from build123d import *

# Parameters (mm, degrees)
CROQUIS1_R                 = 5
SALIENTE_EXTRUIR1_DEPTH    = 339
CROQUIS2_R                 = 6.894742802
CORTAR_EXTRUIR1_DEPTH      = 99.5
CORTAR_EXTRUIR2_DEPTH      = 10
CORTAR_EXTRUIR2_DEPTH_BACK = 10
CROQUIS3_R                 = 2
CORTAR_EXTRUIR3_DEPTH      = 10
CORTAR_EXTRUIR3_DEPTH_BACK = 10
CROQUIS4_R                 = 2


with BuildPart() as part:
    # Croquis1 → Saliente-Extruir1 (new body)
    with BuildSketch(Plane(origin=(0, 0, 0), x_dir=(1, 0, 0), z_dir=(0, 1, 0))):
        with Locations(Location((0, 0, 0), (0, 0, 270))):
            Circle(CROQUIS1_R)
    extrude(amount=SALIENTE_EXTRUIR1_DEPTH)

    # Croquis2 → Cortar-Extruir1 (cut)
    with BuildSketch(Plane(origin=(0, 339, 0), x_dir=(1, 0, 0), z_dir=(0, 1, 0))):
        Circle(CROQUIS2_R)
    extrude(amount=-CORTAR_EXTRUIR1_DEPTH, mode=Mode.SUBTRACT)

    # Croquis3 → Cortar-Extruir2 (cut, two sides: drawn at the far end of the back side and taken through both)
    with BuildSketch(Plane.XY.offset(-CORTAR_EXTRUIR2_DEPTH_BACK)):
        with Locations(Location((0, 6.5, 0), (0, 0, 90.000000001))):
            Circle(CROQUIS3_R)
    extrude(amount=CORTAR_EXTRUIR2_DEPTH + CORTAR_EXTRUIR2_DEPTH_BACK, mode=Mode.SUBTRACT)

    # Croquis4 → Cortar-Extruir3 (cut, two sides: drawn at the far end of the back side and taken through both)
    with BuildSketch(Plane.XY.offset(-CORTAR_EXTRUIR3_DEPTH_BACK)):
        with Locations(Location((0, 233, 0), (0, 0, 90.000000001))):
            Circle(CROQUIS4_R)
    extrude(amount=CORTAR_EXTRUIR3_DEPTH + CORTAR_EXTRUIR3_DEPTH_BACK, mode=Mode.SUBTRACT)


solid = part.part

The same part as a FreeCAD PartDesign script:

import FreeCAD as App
import Part
import Sketcher
Q = App.Units.Quantity

doc = App.newDocument("Part")
params = doc.addObject("Spreadsheet::Sheet", "Params")
for row, (alias, value) in enumerate([
    ("sketch1_diameter", "10 mm"),
    ("pad1_length", "339 mm"),
    ("pocket1_length", "99.5 mm"),
    ("sketch3_diameter", "4 mm"),
    ("sketch4_diameter", "4 mm"),
], start=1):
    params.set(f"A{row}", alias)
    params.set(f"B{row}", "=" + value)
    params.setAlias(f"B{row}", alias)

body = doc.addObject("PartDesign::Body", "Body")

# Sketch on XZ plane
sketch1 = doc.addObject("Sketcher::SketchObject", "Sketch")
body.addObject(sketch1)
sketch1.AttachmentSupport = (doc.XZ_Plane, [""])
sketch1.MapMode = "FlatFace"
sketch1.addGeometry(Part.Circle(App.Vector(0, 0, 0), App.Vector(0, 0, 1), 5), False)
sketch1.addConstraint(Sketcher.Constraint("Coincident", 0, 3, -1, 1))
sketch1.addConstraint(Sketcher.Constraint("Diameter", 0, Q("10 mm")))
sketch1.setExpression("Constraints[1]", "Params.sketch1_diameter")
pad1 = doc.addObject("PartDesign::Pad", "Pad")
body.addObject(pad1)
pad1.Profile = sketch1
pad1.setExpression("Length", "Params.pad1_length")
pad1.Reversed = True

# Sketch on XZ plane
sketch2 = doc.addObject("Sketcher::SketchObject", "Sketch001")
body.addObject(sketch2)
sketch2.AttachmentSupport = (doc.XZ_Plane, [""])
sketch2.MapMode = "FlatFace"
sketch2.AttachmentOffset = App.Placement(App.Vector(0, 0, -339), App.Rotation())
sketch2.addGeometry(Part.Circle(App.Vector(0, 0, 0), App.Vector(0, 0, 1), 7), False)
sketch2.addConstraint(Sketcher.Constraint("Coincident", 0, 3, -1, 1))
sketch2.addConstraint(Sketcher.Constraint("Diameter", 0, Q("13.789486 mm")))
pocket1 = doc.addObject("PartDesign::Pocket", "Pocket")
body.addObject(pocket1)
pocket1.Profile = sketch2
pocket1.setExpression("Length", "Params.pocket1_length")
pocket1.Reversed = True

# Sketch on XY plane
sketch3 = doc.addObject("Sketcher::SketchObject", "Sketch002")
body.addObject(sketch3)
sketch3.AttachmentSupport = (doc.XY_Plane, [""])
sketch3.MapMode = "FlatFace"
sketch3.addGeometry(Part.Circle(App.Vector(0, 6.5, 0), App.Vector(0, 0, 1), 2), False)
sketch3.addConstraint(Sketcher.Constraint("PointOnObject", 0, 3, -2))
sketch3.addConstraint(Sketcher.Constraint("Diameter", 0, Q("4 mm")))
sketch3.addConstraint(Sketcher.Constraint("DistanceY", -1, 1, 0, 3, Q("6.5 mm")))
sketch3.setExpression("Constraints[1]", "Params.sketch3_diameter")
pocket2 = doc.addObject("PartDesign::Pocket", "Pocket001")
body.addObject(pocket2)
pocket2.Profile = sketch3
pocket2.Type = "ThroughAll"
pocket2.Midplane = True

# Sketch on XY plane
sketch4 = doc.addObject("Sketcher::SketchObject", "Sketch003")
body.addObject(sketch4)
sketch4.AttachmentSupport = (doc.XY_Plane, [""])
sketch4.MapMode = "FlatFace"
sketch4.addGeometry(Part.Circle(App.Vector(0, 233, 0), App.Vector(0, 0, 1), 2), False)
sketch4.addConstraint(Sketcher.Constraint("PointOnObject", 0, 3, -2))
sketch4.addConstraint(Sketcher.Constraint("Diameter", 0, Q("4 mm")))
sketch4.addConstraint(Sketcher.Constraint("DistanceY", -1, 1, 0, 3, Q("233 mm")))
sketch4.setExpression("Constraints[1]", "Params.sketch4_diameter")
pocket3 = doc.addObject("PartDesign::Pocket", "Pocket002")
body.addObject(pocket3)
pocket3.Profile = sketch4
pocket3.Type = "ThroughAll"
pocket3.Midplane = True

doc.recompute()
